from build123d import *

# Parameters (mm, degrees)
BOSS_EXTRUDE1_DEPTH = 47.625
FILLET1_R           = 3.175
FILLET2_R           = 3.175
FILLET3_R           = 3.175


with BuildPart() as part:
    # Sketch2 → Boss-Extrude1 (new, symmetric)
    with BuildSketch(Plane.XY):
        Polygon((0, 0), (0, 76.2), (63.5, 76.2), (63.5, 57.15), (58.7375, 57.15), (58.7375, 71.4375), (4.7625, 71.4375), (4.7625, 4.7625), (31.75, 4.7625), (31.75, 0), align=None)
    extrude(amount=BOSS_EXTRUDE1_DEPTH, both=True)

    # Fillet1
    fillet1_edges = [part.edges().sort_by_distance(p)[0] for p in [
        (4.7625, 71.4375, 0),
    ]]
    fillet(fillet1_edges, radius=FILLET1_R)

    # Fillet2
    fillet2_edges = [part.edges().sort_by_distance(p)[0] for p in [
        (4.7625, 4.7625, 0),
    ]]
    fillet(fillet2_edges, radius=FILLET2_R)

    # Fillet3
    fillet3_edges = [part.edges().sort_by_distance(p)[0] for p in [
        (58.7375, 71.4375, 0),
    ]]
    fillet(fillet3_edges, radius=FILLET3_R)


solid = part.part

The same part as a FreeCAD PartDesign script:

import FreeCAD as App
import Part
import Sketcher
from FreeCAD import Vector
Q = App.Units.Quantity


def edges_at(feature, points):
    """Names of the edges that pass closest to the given points."""
    edges = feature.Shape.Edges
    near = lambda p: min(range(len(edges)), key=lambda i: edges[i].distToShape(Part.Vertex(*p))[0])
    return sorted({f"Edge{near(p) + 1}" for p in points})

doc = App.newDocument("Part")
body = doc.addObject("PartDesign::Body", "Body")

sketch1 = body.newObject("Sketcher::SketchObject", "Sketch")
sketch1.AttachmentSupport = (doc.getObject("XY_Plane"), [""])
sketch1.MapMode = "FlatFace"
sketch1.addGeometry(Part.LineSegment(Vector(0, 76.2, 0), Vector(0, 0, 0)), False)
sketch1.addGeometry(Part.LineSegment(Vector(0, 0, 0), Vector(31.8, 0, 0)), False)
sketch1.addGeometry(Part.LineSegment(Vector(31.8, 0, 0), Vector(31.8, 4.8, 0)), False)
sketch1.addGeometry(Part.LineSegment(Vector(31.8, 4.8, 0), Vector(4.8, 4.8, 0)), False)
sketch1.addGeometry(Part.LineSegment(Vector(4.8, 4.8, 0), Vector(4.8, 71.4, 0)), False)
sketch1.addGeometry(Part.LineSegment(Vector(4.8, 71.4, 0), Vector(58.7, 71.4, 0)), False)
sketch1.addGeometry(Part.LineSegment(Vector(58.7, 71.4, 0), Vector(58.7, 57.1, 0)), False)
sketch1.addGeometry(Part.LineSegment(Vector(58.7, 57.1, 0), Vector(63.5, 57.1, 0)), False)
sketch1.addGeometry(Part.LineSegment(Vector(63.5, 57.1, 0), Vector(63.5, 76.2, 0)), False)
sketch1.addGeometry(Part.LineSegment(Vector(63.5, 76.2, 0), Vector(0, 76.2, 0)), False)
sketch1.addConstraint(Sketcher.Constraint("Coincident", 0, 2, 1, 1))
sketch1.addConstraint(Sketcher.Constraint("Coincident", 1, 2, 2, 1))
sketch1.addConstraint(Sketcher.Constraint("Coincident", 2, 2, 3, 1))
sketch1.addConstraint(Sketcher.Constraint("Coincident", 3, 2, 4, 1))
sketch1.addConstraint(Sketcher.Constraint("Coincident", 4, 2, 5, 1))
sketch1.addConstraint(Sketcher.Constraint("Coincident", 5, 2, 6, 1))
sketch1.addConstraint(Sketcher.Constraint("Coincident", 6, 2, 7, 1))
sketch1.addConstraint(Sketcher.Constraint("Coincident", 7, 2, 8, 1))
sketch1.addConstraint(Sketcher.Constraint("Coincident", 8, 2, 9, 1))
sketch1.addConstraint(Sketcher.Constraint("Coincident", 9, 2, 0, 1))
sketch1.addConstraint(Sketcher.Constraint("Vertical", 0))
sketch1.addConstraint(Sketcher.Constraint("Horizontal", 1))
sketch1.addConstraint(Sketcher.Constraint("Vertical", 2))
sketch1.addConstraint(Sketcher.Constraint("Horizontal", 3))
sketch1.addConstraint(Sketcher.Constraint("Vertical", 4))
sketch1.addConstraint(Sketcher.Constraint("Horizontal", 5))
sketch1.addConstraint(Sketcher.Constraint("Vertical", 6))
sketch1.addConstraint(Sketcher.Constraint("Horizontal", 7))
sketch1.addConstraint(Sketcher.Constraint("Vertical", 8))
sketch1.addConstraint(Sketcher.Constraint("Horizontal", 9))
sketch1.addConstraint(Sketcher.Constraint("Coincident", 0, 2, -1, 1))
sketch1.addConstraint(Sketcher.Constraint("Equal", 7, 2))
sketch1.addConstraint(Sketcher.Constraint("DistanceY", 0, 2, 0, 1, Q("3 in")))
sketch1.addConstraint(Sketcher.Constraint("DistanceX", 9, 2, 9, 1, Q("2.5 in")))
sketch1.addConstraint(Sketcher.Constraint("DistanceX", 1, 1, 1, 2, Q("1.25 in")))
sketch1.addConstraint(Sketcher.Constraint("DistanceY", 8, 1, 8, 2, Q("0.75 in")))
sketch1.addConstraint(Sketcher.Constraint("DistanceX", 3, 2, 3, 1, Q("1.0625 in")))
sketch1.addConstraint(Sketcher.Constraint("DistanceX", 5, 1, 5, 2, Q("2.125 in")))
sketch1.addConstraint(Sketcher.Constraint("DistanceY", 4, 1, 4, 2, Q("2.625 in")))
pad1 = body.newObject("PartDesign::Pad", "Pad")
pad1.Profile = sketch1
pad1.Length = Q("3.75 in")
pad1.Midplane = True
doc.recompute()

fillet = body.newObject("PartDesign::Fillet", "Fillet")
fillet.Base = (pad1, edges_at(pad1, [(4.763, 71.438, 0)]))
fillet.Radius = Q("0.125 in")
doc.recompute()

fillet2 = body.newObject("PartDesign::Fillet", "Fillet001")
fillet2.Base = (fillet, edges_at(fillet, [(4.763, 4.763, 0)]))
fillet2.Radius = Q("0.125 in")
doc.recompute()

fillet3 = body.newObject("PartDesign::Fillet", "Fillet002")
fillet3.Base = (fillet2, edges_at(fillet2, [(58.737, 71.438, 0)]))
fillet3.Radius = Q("0.125 in")

doc.recompute()
